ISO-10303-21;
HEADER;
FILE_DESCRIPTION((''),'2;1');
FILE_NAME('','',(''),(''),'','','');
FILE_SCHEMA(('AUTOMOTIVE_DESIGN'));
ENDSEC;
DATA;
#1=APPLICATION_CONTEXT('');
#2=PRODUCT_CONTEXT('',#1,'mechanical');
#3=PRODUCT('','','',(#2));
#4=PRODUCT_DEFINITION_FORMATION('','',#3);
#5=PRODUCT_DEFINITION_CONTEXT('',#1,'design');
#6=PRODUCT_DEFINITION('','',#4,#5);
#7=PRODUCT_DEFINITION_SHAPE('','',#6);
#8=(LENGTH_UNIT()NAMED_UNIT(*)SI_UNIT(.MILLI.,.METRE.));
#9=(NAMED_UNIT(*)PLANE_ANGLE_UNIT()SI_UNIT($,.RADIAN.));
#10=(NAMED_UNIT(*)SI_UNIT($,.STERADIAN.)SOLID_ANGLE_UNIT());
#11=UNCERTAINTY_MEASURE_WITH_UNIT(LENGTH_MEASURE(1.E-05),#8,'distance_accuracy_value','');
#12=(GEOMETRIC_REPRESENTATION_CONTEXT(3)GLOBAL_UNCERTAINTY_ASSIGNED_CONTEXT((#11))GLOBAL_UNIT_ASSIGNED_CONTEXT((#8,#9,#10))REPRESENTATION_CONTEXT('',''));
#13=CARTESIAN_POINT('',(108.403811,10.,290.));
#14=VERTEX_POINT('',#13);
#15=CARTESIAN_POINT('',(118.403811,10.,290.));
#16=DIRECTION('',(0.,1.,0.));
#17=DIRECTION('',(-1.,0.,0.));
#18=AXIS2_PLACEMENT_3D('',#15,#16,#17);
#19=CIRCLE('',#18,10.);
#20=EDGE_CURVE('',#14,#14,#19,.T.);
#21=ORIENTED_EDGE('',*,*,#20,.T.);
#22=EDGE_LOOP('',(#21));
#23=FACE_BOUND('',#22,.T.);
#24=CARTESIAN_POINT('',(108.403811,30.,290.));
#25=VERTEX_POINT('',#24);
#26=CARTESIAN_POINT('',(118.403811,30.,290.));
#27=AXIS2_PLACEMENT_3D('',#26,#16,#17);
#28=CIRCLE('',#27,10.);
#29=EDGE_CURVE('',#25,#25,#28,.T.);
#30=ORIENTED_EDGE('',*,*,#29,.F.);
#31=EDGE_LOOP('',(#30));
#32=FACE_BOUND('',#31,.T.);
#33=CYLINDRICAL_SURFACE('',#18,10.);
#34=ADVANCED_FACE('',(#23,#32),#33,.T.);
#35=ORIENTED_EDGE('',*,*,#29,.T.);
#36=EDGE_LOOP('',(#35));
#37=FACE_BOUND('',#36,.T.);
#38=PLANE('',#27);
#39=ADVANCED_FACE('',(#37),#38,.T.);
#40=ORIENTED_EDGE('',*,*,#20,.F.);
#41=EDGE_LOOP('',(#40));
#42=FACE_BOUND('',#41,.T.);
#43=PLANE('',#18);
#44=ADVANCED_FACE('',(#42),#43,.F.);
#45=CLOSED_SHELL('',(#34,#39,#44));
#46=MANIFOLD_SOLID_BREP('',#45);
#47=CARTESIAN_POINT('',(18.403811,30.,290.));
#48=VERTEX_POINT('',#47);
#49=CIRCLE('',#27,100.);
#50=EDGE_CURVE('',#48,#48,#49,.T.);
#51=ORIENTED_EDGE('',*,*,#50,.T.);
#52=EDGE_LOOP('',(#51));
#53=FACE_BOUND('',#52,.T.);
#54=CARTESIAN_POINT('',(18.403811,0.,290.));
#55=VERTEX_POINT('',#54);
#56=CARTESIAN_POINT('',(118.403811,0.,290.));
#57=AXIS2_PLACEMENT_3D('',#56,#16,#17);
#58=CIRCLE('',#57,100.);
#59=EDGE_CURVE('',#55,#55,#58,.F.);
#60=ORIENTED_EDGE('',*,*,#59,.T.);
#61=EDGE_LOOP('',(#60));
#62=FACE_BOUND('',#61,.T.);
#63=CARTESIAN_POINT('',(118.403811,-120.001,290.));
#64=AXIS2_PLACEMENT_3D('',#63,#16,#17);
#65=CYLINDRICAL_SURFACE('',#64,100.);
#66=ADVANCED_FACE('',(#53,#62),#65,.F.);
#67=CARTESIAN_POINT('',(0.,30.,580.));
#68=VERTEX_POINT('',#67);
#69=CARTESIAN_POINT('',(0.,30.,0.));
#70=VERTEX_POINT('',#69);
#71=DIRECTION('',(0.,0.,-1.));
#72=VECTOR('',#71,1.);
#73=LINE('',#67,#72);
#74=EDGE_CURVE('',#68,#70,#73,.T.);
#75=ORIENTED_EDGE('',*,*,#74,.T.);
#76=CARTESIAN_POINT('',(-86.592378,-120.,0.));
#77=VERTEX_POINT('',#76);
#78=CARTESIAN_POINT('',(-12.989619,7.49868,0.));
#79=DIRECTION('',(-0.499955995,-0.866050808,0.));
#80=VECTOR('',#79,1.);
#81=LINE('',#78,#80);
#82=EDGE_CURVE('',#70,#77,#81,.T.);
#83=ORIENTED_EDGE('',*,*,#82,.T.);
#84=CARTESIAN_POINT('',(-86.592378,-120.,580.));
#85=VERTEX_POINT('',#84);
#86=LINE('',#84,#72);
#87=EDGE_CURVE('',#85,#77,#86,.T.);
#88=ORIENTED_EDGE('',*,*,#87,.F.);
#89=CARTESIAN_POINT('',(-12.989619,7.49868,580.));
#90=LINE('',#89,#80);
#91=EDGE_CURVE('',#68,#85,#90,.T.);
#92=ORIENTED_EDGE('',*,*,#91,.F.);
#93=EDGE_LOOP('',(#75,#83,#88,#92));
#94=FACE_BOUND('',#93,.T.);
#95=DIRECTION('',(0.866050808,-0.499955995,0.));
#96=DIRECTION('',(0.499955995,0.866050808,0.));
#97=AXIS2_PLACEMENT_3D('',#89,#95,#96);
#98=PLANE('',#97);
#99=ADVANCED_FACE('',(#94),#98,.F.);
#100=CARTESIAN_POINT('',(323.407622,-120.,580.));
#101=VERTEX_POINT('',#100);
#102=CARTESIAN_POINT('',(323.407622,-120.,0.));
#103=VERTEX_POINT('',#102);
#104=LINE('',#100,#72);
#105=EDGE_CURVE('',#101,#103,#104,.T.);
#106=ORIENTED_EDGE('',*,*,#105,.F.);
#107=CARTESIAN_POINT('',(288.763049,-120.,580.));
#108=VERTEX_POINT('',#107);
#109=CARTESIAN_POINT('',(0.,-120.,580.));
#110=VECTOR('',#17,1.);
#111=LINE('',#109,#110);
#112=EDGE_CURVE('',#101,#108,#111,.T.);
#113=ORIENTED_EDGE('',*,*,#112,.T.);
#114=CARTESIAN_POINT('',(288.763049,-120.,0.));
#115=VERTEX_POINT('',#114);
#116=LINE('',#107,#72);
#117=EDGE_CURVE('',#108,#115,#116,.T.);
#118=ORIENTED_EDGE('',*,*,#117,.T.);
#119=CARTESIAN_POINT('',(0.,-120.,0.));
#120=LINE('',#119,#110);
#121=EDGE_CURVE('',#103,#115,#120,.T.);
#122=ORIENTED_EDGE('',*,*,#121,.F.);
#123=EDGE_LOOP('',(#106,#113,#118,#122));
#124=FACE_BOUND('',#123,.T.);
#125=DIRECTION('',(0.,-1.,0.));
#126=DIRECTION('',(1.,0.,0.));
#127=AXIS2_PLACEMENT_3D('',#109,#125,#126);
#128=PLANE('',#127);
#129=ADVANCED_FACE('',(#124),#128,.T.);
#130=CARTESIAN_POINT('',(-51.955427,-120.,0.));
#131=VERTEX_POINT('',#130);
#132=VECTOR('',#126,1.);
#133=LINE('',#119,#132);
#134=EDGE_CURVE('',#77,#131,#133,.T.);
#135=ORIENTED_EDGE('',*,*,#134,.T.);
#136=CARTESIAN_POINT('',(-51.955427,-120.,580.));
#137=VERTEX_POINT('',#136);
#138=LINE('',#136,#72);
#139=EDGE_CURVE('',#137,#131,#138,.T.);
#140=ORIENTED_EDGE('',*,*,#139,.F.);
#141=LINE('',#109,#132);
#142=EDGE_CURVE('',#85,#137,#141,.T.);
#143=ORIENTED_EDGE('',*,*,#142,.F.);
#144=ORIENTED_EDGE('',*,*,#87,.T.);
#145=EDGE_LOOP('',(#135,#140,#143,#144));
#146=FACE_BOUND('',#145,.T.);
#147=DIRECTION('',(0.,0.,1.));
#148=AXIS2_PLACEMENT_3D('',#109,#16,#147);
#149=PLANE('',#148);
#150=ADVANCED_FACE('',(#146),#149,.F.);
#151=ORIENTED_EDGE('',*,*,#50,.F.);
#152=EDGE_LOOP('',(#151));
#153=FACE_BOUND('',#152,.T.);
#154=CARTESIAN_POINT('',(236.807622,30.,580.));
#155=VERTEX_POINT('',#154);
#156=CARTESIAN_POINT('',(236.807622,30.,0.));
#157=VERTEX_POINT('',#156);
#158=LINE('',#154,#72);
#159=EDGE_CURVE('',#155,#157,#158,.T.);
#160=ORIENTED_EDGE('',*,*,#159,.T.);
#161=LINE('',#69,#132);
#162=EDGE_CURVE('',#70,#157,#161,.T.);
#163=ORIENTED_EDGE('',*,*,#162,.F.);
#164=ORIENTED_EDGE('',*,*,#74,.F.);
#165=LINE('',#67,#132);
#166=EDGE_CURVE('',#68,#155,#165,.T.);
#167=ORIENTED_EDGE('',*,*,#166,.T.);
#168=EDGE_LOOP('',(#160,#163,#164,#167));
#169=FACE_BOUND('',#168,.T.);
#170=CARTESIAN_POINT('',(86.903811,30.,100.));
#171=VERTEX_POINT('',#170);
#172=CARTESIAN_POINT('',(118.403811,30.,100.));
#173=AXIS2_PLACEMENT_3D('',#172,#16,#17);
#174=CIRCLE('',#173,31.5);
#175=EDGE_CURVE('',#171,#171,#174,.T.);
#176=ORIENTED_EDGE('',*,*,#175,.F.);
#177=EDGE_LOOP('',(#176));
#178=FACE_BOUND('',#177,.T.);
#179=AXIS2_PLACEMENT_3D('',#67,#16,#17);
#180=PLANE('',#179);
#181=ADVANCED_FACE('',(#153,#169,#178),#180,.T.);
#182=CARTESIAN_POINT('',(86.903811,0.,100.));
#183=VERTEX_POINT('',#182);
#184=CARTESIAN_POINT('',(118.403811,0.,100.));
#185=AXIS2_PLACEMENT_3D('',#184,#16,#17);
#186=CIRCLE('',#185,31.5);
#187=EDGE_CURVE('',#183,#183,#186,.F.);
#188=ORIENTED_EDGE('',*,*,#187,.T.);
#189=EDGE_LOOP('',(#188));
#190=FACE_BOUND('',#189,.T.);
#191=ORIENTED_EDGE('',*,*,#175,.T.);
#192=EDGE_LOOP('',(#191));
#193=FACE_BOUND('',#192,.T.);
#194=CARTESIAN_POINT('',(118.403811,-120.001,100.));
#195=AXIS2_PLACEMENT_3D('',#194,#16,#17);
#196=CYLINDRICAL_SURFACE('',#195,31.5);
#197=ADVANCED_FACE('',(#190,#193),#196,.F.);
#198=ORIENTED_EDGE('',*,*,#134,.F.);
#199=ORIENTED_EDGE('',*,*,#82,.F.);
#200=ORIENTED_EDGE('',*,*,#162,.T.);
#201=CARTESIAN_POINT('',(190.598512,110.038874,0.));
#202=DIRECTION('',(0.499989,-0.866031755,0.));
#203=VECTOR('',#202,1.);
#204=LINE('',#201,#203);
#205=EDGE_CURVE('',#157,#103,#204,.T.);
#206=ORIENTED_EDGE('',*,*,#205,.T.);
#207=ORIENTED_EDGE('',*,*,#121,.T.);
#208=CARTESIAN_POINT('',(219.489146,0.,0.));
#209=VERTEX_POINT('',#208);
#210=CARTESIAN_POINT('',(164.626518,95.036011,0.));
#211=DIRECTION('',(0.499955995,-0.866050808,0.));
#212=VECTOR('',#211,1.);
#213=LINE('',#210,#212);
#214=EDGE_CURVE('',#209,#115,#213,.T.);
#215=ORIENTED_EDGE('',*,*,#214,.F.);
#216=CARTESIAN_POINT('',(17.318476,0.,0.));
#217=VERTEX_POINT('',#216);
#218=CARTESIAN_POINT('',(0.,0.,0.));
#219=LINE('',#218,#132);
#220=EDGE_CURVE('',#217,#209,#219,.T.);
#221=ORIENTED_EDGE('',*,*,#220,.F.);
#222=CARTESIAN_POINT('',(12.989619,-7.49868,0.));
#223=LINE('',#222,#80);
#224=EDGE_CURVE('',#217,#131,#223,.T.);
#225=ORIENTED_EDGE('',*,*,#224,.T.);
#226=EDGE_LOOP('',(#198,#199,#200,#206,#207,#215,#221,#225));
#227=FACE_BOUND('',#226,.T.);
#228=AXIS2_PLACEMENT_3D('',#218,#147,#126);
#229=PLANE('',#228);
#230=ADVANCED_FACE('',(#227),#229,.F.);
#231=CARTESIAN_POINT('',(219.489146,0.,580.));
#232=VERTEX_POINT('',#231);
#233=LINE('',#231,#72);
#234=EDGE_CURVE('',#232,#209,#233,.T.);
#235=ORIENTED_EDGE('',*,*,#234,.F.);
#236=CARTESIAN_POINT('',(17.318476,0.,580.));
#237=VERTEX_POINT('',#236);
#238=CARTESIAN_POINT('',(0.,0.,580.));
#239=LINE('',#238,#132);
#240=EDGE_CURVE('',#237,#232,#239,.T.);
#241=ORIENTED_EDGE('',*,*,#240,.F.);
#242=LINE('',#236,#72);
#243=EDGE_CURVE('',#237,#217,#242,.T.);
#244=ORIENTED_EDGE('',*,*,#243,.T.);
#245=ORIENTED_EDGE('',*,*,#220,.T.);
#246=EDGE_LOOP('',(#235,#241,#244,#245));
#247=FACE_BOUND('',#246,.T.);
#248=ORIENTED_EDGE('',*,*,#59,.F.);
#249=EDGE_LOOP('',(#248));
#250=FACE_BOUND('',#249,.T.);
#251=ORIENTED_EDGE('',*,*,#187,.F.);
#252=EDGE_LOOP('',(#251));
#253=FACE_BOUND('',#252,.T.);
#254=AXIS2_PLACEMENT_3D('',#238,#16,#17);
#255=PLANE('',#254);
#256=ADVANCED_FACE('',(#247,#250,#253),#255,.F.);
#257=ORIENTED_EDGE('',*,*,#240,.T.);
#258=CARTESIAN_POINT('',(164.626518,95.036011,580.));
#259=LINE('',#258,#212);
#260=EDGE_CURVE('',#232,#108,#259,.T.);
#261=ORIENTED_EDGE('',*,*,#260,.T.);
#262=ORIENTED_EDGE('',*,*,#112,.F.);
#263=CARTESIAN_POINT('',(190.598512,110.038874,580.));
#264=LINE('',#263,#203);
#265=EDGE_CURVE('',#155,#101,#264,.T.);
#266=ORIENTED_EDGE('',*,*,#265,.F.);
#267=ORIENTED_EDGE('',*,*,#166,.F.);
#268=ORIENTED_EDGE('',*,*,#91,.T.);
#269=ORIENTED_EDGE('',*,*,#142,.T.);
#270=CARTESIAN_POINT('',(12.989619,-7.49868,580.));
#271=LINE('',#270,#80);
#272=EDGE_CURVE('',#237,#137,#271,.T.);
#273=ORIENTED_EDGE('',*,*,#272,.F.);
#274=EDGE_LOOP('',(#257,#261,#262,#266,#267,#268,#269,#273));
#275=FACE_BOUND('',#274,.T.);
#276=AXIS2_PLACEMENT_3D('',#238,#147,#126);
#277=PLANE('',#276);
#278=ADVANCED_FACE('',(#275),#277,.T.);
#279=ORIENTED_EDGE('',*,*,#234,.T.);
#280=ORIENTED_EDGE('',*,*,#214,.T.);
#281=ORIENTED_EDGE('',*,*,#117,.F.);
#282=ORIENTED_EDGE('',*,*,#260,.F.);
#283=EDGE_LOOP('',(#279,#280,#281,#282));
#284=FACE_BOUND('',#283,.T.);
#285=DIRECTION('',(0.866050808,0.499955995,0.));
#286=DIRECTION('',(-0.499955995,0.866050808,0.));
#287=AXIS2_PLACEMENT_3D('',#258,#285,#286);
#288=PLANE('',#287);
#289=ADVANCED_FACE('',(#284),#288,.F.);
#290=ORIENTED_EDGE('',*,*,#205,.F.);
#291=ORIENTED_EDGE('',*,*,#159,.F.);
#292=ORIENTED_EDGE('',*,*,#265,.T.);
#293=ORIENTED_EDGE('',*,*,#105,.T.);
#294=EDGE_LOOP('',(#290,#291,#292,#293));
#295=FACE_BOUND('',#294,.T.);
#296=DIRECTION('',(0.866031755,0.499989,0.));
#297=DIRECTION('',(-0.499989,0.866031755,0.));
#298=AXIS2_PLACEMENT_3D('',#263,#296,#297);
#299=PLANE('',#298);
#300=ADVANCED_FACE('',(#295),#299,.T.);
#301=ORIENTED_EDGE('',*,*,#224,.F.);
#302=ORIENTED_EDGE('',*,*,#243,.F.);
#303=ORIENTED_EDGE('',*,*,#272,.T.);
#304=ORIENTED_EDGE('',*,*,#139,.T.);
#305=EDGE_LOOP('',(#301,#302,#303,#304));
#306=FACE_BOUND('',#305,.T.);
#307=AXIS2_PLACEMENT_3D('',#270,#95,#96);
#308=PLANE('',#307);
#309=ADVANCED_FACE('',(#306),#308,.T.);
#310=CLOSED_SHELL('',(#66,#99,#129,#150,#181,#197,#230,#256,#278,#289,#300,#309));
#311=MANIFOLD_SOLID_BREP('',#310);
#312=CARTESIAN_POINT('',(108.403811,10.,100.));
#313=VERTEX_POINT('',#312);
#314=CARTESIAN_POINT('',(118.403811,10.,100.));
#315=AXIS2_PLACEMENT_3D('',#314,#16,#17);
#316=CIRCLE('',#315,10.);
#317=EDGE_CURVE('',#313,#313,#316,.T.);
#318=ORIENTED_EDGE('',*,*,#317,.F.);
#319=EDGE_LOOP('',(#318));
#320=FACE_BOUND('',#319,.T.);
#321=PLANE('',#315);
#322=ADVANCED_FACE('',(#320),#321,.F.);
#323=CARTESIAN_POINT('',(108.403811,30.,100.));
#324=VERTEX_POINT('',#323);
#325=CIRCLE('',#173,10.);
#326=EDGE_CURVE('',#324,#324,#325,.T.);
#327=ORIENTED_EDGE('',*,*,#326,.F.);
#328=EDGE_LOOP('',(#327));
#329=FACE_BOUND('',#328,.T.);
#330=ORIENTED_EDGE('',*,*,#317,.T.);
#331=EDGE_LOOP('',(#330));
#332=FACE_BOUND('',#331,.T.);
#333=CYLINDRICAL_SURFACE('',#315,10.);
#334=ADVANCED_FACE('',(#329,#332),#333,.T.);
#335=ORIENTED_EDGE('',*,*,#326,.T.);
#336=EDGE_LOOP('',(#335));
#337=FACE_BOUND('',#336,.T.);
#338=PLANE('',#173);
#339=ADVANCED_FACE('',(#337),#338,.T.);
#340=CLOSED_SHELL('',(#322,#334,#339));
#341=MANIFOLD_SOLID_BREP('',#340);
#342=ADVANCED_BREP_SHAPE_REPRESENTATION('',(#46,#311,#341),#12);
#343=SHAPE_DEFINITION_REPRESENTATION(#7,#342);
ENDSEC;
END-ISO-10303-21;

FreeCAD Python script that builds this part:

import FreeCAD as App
import Part
import Sketcher
from FreeCAD import Vector
Q = App.Units.Quantity


def add_polygon(sketch, points):
    """Adds a closed chain of lines whose ends are joined by coincident constraints."""
    first, n = sketch.GeometryCount, len(points)
    for a, b in zip(points, points[1:] + points[:1]):
        sketch.addGeometry(Part.LineSegment(App.Vector(*a, 0), App.Vector(*b, 0)), False)
    for i in range(n):
        sketch.addConstraint(Sketcher.Constraint("Coincident", first + i, 2, first + (i + 1) % n, 1))

doc = App.newDocument("Part")
body = doc.addObject("PartDesign::Body", "Body")

sketch1 = body.newObject("Sketcher::SketchObject", "Sketch")
sketch1.AttachmentSupport = (doc.getObject("XY_Plane"), [""])
sketch1.MapMode = "FlatFace"
add_polygon(sketch1, [(237, 30), (0, 30), (-87, -120), (-52, -120), (17, 0), (219, 0), (289, -120), (323, -120)])
sketch1.addConstraint([
    Sketcher.Constraint("Horizontal", 0),
    Sketcher.Constraint("Horizontal", 2),
    Sketcher.Constraint("Horizontal", 4),
    Sketcher.Constraint("Horizontal", 6),
    Sketcher.Constraint("PointOnObject", 0, 2, -2),
    Sketcher.Constraint("PointOnObject", 3, 2, -1),
    Sketcher.Constraint("Parallel", 1, 3),
    Sketcher.Constraint("Horizontal", 2, 2, 5, 2),
    Sketcher.Constraint("Equal", 3, 5),
    Sketcher.Constraint("DistanceY", -1, 1, 0, 2, Q("30 mm")),
    Sketcher.Constraint("DistanceY", 1, 2, -1, 1, Q("120 mm")),
    Sketcher.Constraint("Distance", 1, Q("173.2 mm")),
    Sketcher.Constraint("DistanceX", 7, 2, 6, 2, Q("86.6 mm")),
    Sketcher.Constraint("DistanceX", 0, 2, 0, 1, Q("236.807622 mm")),
    Sketcher.Constraint("DistanceX", 2, 1, 2, 2, Q("34.636951 mm")),
    Sketcher.Constraint("DistanceX", 4, 1, 4, 2, Q("202.17067 mm")),
])
pad1 = body.newObject("PartDesign::Pad", "Pad")
pad1.Profile = sketch1
pad1.Length = 580

sketch2 = body.newObject("Sketcher::SketchObject", "Sketch001")
sketch2.AttachmentSupport = (doc.getObject("XZ_Plane"), [""])
sketch2.MapMode = "FlatFace"
sketch2.AttachmentOffset = App.Placement(Vector(0, 0, -30), App.Rotation())
sketch2.addGeometry(Part.Circle(Vector(118, 290, 0), Vector(0, 0, 1), 100), False)
sketch2.addConstraint([
    Sketcher.Constraint("Diameter", 0, Q("200 mm")),
    Sketcher.Constraint("DistanceY", -1, 1, 0, 3, Q("290 mm")),
    Sketcher.Constraint("DistanceX", -1, 1, 0, 3, Q("118.403811 mm")),
])
pocket1 = body.newObject("PartDesign::Pocket", "Pocket")
pocket1.Profile = sketch2
pocket1.Type = "UpToFirst"
pocket1.Reversed = True

sketch3 = body.newObject("Sketcher::SketchObject", "Sketch002")
sketch3.AttachmentSupport = (doc.getObject("XZ_Plane"), [""])
sketch3.MapMode = "FlatFace"
sketch3.AttachmentOffset = App.Placement(Vector(0, 0, -30), App.Rotation())
sketch3.addGeometry(Part.Circle(Vector(118, 100, 0), Vector(0, 0, 1), 32), False)
sketch3.addConstraint([
    Sketcher.Constraint("Diameter", 0, Q("63 mm")),
    Sketcher.Constraint("DistanceY", -1, 1, 0, 3, Q("100 mm")),
    Sketcher.Constraint("DistanceX", -1, 1, 0, 3, Q("118.403811 mm")),
])
pocket2 = body.newObject("PartDesign::Pocket", "Pocket001")
pocket2.Profile = sketch3
pocket2.Type = "UpToFirst"
pocket2.Reversed = True
body2 = doc.addObject("PartDesign::Body", "Body001")

sketch4 = body2.newObject("Sketcher::SketchObject", "Sketch003")
sketch4.AttachmentSupport = (doc.getObject("XZ_Plane001"), [""])
sketch4.MapMode = "FlatFace"
sketch4.AttachmentOffset = App.Placement(Vector(0, 0, -30), App.Rotation())
sketch4.addGeometry(Part.Circle(Vector(118, 290, 0), Vector(0, 0, 1), 10), False)
sketch4.addConstraint([
    Sketcher.Constraint("Diameter", 0, Q("20 mm")),
    Sketcher.Constraint("DistanceY", -1, 1, 0, 3, Q("290 mm")),
    Sketcher.Constraint("DistanceX", -1, 1, 0, 3, Q("118.403811 mm")),
])
pad2 = body2.newObject("PartDesign::Pad", "Pad001")
pad2.Profile = sketch4
pad2.Length = 20
body3 = doc.addObject("PartDesign::Body", "Body002")

sketch5 = body3.newObject("Sketcher::SketchObject", "Sketch004")
sketch5.AttachmentSupport = (doc.getObject("XZ_Plane002"), [""])
sketch5.MapMode = "FlatFace"
sketch5.AttachmentOffset = App.Placement(Vector(0, 0, -30), App.Rotation())
sketch5.addGeometry(Part.Circle(Vector(118, 100, 0), Vector(0, 0, 1), 10), False)
sketch5.addConstraint([
    Sketcher.Constraint("Diameter", 0, Q("20 mm")),
    Sketcher.Constraint("DistanceY", -1, 1, 0, 3, Q("100 mm")),
    Sketcher.Constraint("DistanceX", -1, 1, 0, 3, Q("118.403811 mm")),
])
pad3 = body3.newObject("PartDesign::Pad", "Pad002")
pad3.Profile = sketch5
pad3.Length = 20

doc.recompute()
